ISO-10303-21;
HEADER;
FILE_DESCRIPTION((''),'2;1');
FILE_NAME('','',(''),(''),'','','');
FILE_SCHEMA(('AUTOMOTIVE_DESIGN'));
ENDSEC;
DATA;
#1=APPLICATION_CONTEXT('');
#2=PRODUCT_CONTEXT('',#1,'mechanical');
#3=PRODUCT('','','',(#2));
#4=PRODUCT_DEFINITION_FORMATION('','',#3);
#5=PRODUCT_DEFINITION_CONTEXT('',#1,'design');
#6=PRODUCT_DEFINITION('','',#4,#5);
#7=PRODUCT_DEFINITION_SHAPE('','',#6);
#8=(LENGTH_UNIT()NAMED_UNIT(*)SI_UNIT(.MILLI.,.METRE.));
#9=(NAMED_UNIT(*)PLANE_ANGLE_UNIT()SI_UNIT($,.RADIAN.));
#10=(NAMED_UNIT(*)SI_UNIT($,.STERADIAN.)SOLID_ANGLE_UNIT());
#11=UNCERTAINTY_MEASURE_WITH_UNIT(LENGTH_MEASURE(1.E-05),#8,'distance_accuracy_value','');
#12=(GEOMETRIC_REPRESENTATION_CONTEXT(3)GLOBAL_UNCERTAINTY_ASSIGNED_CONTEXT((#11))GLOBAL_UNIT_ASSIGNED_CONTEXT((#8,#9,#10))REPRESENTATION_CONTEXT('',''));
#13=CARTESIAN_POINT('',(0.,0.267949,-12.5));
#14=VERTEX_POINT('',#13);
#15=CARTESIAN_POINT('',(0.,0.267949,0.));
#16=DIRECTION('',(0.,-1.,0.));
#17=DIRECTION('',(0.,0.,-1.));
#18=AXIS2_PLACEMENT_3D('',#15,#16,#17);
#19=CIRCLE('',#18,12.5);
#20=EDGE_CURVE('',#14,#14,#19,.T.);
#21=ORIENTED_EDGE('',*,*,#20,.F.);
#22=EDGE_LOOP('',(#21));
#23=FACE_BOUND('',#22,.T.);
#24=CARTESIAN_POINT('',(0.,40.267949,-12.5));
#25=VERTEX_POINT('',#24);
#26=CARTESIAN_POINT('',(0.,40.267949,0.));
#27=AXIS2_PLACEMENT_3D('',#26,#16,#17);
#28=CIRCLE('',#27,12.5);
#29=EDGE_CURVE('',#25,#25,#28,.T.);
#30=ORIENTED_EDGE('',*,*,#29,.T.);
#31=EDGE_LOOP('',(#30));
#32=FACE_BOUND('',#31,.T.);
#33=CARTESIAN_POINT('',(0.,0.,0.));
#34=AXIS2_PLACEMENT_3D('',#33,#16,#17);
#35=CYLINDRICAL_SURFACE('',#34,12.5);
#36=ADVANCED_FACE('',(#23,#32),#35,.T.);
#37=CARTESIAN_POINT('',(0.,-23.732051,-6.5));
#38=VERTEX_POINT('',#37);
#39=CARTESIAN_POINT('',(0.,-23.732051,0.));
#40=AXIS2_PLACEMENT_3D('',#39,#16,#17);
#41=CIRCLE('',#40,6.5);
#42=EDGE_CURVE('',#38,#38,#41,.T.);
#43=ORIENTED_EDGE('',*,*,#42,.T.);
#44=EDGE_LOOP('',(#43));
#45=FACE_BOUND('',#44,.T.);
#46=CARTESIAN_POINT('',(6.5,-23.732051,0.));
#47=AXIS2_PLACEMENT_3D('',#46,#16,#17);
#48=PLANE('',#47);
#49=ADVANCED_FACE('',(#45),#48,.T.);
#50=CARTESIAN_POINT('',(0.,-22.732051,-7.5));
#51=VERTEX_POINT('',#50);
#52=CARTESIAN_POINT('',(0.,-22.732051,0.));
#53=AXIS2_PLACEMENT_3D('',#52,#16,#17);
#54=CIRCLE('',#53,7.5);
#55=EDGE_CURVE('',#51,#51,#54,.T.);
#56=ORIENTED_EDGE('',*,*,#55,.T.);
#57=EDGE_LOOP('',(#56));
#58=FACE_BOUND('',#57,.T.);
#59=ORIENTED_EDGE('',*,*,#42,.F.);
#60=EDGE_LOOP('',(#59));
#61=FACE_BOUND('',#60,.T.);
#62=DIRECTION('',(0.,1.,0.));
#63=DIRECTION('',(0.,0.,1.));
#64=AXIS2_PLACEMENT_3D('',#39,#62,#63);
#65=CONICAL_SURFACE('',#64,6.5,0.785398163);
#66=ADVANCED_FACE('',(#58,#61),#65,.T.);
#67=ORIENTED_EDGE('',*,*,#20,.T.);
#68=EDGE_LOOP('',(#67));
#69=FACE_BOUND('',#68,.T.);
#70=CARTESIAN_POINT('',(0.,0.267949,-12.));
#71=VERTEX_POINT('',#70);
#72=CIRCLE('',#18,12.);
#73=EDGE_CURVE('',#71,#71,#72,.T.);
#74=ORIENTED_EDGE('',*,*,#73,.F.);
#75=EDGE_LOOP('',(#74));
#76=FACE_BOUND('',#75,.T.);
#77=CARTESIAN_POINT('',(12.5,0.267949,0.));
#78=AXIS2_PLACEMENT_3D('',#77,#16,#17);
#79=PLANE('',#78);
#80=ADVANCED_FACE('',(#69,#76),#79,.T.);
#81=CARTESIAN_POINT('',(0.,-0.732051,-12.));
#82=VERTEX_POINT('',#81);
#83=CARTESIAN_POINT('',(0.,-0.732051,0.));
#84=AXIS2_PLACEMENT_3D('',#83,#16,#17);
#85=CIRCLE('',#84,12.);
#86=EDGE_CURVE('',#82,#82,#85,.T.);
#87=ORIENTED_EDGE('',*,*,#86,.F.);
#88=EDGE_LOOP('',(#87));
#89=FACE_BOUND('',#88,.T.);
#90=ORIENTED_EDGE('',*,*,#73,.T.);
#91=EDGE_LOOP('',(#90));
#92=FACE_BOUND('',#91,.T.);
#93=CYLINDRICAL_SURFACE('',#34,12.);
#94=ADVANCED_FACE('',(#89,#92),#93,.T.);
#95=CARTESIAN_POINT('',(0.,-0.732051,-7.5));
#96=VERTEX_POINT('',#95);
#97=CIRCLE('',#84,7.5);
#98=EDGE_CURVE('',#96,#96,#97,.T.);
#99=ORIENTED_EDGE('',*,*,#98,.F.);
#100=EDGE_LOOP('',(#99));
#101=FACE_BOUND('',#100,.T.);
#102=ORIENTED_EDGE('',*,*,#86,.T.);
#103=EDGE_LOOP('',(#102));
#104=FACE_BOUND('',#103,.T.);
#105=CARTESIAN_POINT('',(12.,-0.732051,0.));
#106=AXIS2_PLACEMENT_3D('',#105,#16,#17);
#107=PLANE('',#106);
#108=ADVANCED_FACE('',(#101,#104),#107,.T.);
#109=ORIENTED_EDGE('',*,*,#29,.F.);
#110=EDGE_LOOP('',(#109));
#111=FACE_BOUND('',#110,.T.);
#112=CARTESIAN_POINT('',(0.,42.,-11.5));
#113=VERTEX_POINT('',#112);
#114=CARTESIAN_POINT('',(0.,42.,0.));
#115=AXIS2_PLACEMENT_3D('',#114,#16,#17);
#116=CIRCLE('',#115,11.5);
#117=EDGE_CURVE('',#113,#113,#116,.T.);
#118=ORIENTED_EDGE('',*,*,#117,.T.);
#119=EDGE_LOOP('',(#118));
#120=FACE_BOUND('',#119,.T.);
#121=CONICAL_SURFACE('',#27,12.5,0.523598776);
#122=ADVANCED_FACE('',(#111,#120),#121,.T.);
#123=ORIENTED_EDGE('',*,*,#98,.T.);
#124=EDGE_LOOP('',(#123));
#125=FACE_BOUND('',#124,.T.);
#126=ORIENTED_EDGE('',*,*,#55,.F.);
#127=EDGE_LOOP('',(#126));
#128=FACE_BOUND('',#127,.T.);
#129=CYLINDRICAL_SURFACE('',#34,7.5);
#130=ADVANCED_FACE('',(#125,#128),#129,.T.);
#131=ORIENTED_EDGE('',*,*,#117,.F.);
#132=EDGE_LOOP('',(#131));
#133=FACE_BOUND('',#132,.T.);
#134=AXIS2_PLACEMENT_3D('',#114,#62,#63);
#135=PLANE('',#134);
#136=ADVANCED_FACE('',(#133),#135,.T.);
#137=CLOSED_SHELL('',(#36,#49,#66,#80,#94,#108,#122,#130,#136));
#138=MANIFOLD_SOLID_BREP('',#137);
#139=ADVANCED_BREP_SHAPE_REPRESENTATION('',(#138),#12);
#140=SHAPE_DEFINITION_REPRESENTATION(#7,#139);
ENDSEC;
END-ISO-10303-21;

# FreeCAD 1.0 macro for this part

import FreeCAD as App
import Part
import Sketcher
Q = App.Units.Quantity

doc = App.newDocument("Part")
body = doc.addObject("PartDesign::Body", "Body")

# Sketch on XY plane
sketch1 = body.newObject("Sketcher::SketchObject", "Sketch")
sketch1.AttachmentSupport = (doc.getObject("XY_Plane"), [""])
sketch1.MapMode = "FlatFace"
sketch1.addGeometry([
    Part.LineSegment(App.Vector(0, 42, 0), App.Vector(0, -23.7, 0)),  # 0
    Part.LineSegment(App.Vector(0, -23.7, 0), App.Vector(6.5, -23.7, 0)),  # 1
    Part.LineSegment(App.Vector(6.5, -23.7, 0), App.Vector(7.5, -22.7, 0)),  # 2
    Part.LineSegment(App.Vector(7.5, -22.7, 0), App.Vector(7.5, -0.7, 0)),  # 3
    Part.LineSegment(App.Vector(7.5, -0.7, 0), App.Vector(12, -0.7, 0)),  # 4
    Part.LineSegment(App.Vector(12, -0.7, 0), App.Vector(12, 0.3, 0)),  # 5
    Part.LineSegment(App.Vector(12, 0.3, 0), App.Vector(12.5, 0.3, 0)),  # 6
    Part.LineSegment(App.Vector(12.5, 0.3, 0), App.Vector(12.5, 40.3, 0)),  # 7
    Part.LineSegment(App.Vector(12.5, 40.3, 0), App.Vector(11.5, 42, 0)),  # 8
    Part.LineSegment(App.Vector(11.5, 42, 0), App.Vector(0, 42, 0)),  # 9
], False)
sketch1.addConstraint([
    Sketcher.Constraint("Coincident", 0, 2, 1, 1),
    Sketcher.Constraint("Coincident", 1, 2, 2, 1),
    Sketcher.Constraint("Coincident", 2, 2, 3, 1),
    Sketcher.Constraint("Coincident", 3, 2, 4, 1),
    Sketcher.Constraint("Coincident", 4, 2, 5, 1),
    Sketcher.Constraint("Coincident", 5, 2, 6, 1),
    Sketcher.Constraint("Coincident", 6, 2, 7, 1),
    Sketcher.Constraint("Coincident", 7, 2, 8, 1),
    Sketcher.Constraint("Coincident", 8, 2, 9, 1),
    Sketcher.Constraint("Coincident", 9, 2, 0, 1),
    Sketcher.Constraint("Vertical", 0),
    Sketcher.Constraint("Horizontal", 1),
    Sketcher.Constraint("Vertical", 3),
    Sketcher.Constraint("Horizontal", 4),
    Sketcher.Constraint("Vertical", 5),
    Sketcher.Constraint("Horizontal", 6),
    Sketcher.Constraint("Vertical", 7),
    Sketcher.Constraint("Horizontal", 9),
    Sketcher.Constraint("PointOnObject", 0, 2, -2),
    Sketcher.Constraint("DistanceY", 3, 1, 3, 2, 22.0),
    Sketcher.Constraint("DistanceY", 5, 1, 5, 2, 1.0),
    Sketcher.Constraint("DistanceY", 7, 1, 7, 2, 40.0),
    Sketcher.Constraint("Angle", 2, Q("45 deg")),
    Sketcher.Constraint("Angle", 8, Q("120 deg")),
    Sketcher.Constraint("Distance", 8, 2.0),
    Sketcher.Constraint("DistanceX", 1, 1, 1, 2, 6.5),
    Sketcher.Constraint("DistanceX", 4, 1, 4, 2, 4.5),
    Sketcher.Constraint("DistanceX", 6, 1, 6, 2, 0.5),
    Sketcher.Constraint("DistanceX", 9, 2, 9, 1, 11.5),
    Sketcher.Constraint("DistanceY", -1, 1, 8, 2, 42.0),
])
revolution = body.newObject("PartDesign::Revolution", "Revolution")
revolution.Profile = sketch1
revolution.ReferenceAxis = (sketch1, ["V_Axis"])
revolution.Angle = 360

doc.recompute()
